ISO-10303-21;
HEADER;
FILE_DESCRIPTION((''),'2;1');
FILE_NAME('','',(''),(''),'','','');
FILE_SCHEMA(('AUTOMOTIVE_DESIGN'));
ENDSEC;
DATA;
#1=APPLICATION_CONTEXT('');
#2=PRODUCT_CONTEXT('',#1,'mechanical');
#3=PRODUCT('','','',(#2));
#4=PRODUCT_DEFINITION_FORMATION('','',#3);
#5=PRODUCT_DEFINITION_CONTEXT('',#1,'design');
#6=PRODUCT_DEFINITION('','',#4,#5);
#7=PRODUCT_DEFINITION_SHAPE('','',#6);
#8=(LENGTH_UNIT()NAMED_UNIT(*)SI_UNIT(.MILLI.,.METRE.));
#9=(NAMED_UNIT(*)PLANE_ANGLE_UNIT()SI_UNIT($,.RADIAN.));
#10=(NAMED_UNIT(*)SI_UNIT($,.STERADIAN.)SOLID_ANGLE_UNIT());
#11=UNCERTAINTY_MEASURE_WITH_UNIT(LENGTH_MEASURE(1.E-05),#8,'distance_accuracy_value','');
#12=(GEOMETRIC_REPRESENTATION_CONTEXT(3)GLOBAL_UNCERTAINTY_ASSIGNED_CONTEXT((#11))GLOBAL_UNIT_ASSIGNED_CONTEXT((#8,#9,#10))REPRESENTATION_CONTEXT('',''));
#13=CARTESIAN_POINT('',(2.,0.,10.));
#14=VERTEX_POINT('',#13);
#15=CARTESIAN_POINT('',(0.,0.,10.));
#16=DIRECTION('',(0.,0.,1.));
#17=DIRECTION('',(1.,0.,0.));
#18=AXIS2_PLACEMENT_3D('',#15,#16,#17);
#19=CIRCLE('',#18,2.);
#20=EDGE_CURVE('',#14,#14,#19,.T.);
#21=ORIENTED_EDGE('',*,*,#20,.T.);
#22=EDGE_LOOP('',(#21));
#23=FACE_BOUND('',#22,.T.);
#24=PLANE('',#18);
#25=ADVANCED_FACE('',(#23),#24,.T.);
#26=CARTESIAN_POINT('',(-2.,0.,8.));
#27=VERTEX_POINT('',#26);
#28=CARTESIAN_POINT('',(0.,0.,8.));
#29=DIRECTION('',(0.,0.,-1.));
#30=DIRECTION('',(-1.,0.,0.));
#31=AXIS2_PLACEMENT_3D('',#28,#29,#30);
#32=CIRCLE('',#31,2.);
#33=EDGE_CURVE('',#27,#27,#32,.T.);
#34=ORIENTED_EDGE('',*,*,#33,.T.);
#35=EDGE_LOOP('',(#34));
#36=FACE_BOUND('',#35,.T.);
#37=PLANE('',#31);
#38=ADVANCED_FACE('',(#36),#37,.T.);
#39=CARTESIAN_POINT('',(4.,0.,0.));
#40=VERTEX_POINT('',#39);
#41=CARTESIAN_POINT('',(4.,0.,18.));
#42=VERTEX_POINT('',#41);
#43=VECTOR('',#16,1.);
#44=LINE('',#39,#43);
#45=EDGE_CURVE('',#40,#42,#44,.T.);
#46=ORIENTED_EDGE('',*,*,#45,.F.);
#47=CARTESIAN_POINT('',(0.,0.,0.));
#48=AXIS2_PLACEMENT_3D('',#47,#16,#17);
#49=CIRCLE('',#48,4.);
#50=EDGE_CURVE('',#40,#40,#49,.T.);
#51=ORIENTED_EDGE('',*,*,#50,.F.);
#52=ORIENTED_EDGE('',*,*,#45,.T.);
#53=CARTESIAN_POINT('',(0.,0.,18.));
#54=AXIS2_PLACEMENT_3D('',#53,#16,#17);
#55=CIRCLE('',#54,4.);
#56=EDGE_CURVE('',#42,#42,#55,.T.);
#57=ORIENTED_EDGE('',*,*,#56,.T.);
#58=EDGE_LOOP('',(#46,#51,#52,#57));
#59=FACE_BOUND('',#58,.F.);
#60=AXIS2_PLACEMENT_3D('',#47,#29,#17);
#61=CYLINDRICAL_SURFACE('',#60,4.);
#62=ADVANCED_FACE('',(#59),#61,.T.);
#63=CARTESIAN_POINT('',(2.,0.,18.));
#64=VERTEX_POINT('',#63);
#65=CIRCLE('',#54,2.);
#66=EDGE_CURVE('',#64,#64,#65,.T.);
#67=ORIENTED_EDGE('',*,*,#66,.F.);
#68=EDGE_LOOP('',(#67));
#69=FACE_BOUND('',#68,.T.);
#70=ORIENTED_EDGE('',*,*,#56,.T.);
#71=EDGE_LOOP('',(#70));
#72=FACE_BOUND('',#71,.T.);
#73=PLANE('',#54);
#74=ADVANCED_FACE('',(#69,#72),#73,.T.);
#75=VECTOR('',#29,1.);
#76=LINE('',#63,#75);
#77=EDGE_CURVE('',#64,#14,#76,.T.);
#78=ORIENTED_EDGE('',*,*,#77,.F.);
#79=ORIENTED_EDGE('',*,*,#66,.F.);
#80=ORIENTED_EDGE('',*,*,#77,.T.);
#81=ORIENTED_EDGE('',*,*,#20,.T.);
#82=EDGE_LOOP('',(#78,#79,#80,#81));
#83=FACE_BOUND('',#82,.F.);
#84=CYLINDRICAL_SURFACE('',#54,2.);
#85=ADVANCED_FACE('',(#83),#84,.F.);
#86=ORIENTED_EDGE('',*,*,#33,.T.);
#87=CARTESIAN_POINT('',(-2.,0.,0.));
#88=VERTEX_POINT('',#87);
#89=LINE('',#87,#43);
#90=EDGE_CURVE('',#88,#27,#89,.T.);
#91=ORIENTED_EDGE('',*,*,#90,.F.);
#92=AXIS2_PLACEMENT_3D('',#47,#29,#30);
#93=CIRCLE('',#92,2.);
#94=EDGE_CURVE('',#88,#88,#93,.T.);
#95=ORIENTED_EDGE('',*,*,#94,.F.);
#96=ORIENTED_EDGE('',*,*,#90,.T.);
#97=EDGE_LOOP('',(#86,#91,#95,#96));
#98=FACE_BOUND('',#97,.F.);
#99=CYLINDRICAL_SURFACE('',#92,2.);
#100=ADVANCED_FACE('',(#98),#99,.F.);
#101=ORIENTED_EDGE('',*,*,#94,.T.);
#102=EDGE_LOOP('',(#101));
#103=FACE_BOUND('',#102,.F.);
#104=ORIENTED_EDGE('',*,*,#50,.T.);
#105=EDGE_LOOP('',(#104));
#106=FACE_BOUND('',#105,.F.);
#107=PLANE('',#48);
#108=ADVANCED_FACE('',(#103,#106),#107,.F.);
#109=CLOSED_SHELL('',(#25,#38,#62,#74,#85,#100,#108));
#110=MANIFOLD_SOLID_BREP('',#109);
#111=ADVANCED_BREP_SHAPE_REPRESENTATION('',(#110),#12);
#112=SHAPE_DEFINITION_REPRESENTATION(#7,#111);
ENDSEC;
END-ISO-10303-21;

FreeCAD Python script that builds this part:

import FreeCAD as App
import Part
import Sketcher

doc = App.newDocument("Part")
params = doc.addObject("Spreadsheet::Sheet", "Params")
for row, (alias, value) in enumerate([
    ("sketch1_diameter", "8 mm"),
    ("pad1_length", "18 mm"),
    ("sketch2_diameter", "4 mm"),
    ("pocket1_length", "8 mm"),
    ("sketch3_diameter", "4 mm"),
    ("pocket2_length", "8 mm"),
], start=1):
    params.set(f"A{row}", alias)
    params.set(f"B{row}", "=" + value)
    params.setAlias(f"B{row}", alias)

body = doc.addObject("PartDesign::Body", "Body")

# Sketch on XY plane
sketch1 = doc.addObject("Sketcher::SketchObject", "Sketch")
body.addObject(sketch1)
sketch1.AttachmentSupport = (doc.XY_Plane, [""])
sketch1.MapMode = "FlatFace"
sketch1.addGeometry(Part.Circle(App.Vector(0, 0, 0), App.Vector(0, 0, 1), 4), False)
sketch1.addConstraint([
    Sketcher.Constraint("Coincident", 0, 3, -1, 1),
    Sketcher.Constraint("Diameter", 0, 8.0),
])
sketch1.setExpression("Constraints[1]", "Params.sketch1_diameter")
pad1 = doc.addObject("PartDesign::Pad", "Pad")
body.addObject(pad1)
pad1.Profile = sketch1
pad1.setExpression("Length", "Params.pad1_length")

# Sketch on XY plane
sketch2 = doc.addObject("Sketcher::SketchObject", "Sketch001")
body.addObject(sketch2)
sketch2.AttachmentSupport = (doc.XY_Plane, [""])
sketch2.MapMode = "FlatFace"
sketch2.addGeometry(Part.Circle(App.Vector(0, 0, 0), App.Vector(0, 0, 1), 2), False)
sketch2.addConstraint([
    Sketcher.Constraint("Coincident", 0, 3, -1, 1),
    Sketcher.Constraint("Diameter", 0, 4.0),
])
sketch2.setExpression("Constraints[1]", "Params.sketch2_diameter")
pocket1 = doc.addObject("PartDesign::Pocket", "Pocket")
body.addObject(pocket1)
pocket1.Profile = sketch2
pocket1.setExpression("Length", "Params.pocket1_length")
pocket1.Reversed = True

# Sketch on XY plane
sketch3 = doc.addObject("Sketcher::SketchObject", "Sketch002")
body.addObject(sketch3)
sketch3.AttachmentSupport = (doc.XY_Plane, [""])
sketch3.MapMode = "FlatFace"
sketch3.AttachmentOffset = App.Placement(App.Vector(0, 0, 18), App.Rotation())
sketch3.addGeometry(Part.Circle(App.Vector(0, 0, 0), App.Vector(0, 0, 1), 2), False)
sketch3.addConstraint([
    Sketcher.Constraint("Coincident", 0, 3, -1, 1),
    Sketcher.Constraint("Diameter", 0, 4.0),
])
sketch3.setExpression("Constraints[1]", "Params.sketch3_diameter")
pocket2 = doc.addObject("PartDesign::Pocket", "Pocket001")
body.addObject(pocket2)
pocket2.Profile = sketch3
pocket2.setExpression("Length", "Params.pocket2_length")

doc.recompute()
